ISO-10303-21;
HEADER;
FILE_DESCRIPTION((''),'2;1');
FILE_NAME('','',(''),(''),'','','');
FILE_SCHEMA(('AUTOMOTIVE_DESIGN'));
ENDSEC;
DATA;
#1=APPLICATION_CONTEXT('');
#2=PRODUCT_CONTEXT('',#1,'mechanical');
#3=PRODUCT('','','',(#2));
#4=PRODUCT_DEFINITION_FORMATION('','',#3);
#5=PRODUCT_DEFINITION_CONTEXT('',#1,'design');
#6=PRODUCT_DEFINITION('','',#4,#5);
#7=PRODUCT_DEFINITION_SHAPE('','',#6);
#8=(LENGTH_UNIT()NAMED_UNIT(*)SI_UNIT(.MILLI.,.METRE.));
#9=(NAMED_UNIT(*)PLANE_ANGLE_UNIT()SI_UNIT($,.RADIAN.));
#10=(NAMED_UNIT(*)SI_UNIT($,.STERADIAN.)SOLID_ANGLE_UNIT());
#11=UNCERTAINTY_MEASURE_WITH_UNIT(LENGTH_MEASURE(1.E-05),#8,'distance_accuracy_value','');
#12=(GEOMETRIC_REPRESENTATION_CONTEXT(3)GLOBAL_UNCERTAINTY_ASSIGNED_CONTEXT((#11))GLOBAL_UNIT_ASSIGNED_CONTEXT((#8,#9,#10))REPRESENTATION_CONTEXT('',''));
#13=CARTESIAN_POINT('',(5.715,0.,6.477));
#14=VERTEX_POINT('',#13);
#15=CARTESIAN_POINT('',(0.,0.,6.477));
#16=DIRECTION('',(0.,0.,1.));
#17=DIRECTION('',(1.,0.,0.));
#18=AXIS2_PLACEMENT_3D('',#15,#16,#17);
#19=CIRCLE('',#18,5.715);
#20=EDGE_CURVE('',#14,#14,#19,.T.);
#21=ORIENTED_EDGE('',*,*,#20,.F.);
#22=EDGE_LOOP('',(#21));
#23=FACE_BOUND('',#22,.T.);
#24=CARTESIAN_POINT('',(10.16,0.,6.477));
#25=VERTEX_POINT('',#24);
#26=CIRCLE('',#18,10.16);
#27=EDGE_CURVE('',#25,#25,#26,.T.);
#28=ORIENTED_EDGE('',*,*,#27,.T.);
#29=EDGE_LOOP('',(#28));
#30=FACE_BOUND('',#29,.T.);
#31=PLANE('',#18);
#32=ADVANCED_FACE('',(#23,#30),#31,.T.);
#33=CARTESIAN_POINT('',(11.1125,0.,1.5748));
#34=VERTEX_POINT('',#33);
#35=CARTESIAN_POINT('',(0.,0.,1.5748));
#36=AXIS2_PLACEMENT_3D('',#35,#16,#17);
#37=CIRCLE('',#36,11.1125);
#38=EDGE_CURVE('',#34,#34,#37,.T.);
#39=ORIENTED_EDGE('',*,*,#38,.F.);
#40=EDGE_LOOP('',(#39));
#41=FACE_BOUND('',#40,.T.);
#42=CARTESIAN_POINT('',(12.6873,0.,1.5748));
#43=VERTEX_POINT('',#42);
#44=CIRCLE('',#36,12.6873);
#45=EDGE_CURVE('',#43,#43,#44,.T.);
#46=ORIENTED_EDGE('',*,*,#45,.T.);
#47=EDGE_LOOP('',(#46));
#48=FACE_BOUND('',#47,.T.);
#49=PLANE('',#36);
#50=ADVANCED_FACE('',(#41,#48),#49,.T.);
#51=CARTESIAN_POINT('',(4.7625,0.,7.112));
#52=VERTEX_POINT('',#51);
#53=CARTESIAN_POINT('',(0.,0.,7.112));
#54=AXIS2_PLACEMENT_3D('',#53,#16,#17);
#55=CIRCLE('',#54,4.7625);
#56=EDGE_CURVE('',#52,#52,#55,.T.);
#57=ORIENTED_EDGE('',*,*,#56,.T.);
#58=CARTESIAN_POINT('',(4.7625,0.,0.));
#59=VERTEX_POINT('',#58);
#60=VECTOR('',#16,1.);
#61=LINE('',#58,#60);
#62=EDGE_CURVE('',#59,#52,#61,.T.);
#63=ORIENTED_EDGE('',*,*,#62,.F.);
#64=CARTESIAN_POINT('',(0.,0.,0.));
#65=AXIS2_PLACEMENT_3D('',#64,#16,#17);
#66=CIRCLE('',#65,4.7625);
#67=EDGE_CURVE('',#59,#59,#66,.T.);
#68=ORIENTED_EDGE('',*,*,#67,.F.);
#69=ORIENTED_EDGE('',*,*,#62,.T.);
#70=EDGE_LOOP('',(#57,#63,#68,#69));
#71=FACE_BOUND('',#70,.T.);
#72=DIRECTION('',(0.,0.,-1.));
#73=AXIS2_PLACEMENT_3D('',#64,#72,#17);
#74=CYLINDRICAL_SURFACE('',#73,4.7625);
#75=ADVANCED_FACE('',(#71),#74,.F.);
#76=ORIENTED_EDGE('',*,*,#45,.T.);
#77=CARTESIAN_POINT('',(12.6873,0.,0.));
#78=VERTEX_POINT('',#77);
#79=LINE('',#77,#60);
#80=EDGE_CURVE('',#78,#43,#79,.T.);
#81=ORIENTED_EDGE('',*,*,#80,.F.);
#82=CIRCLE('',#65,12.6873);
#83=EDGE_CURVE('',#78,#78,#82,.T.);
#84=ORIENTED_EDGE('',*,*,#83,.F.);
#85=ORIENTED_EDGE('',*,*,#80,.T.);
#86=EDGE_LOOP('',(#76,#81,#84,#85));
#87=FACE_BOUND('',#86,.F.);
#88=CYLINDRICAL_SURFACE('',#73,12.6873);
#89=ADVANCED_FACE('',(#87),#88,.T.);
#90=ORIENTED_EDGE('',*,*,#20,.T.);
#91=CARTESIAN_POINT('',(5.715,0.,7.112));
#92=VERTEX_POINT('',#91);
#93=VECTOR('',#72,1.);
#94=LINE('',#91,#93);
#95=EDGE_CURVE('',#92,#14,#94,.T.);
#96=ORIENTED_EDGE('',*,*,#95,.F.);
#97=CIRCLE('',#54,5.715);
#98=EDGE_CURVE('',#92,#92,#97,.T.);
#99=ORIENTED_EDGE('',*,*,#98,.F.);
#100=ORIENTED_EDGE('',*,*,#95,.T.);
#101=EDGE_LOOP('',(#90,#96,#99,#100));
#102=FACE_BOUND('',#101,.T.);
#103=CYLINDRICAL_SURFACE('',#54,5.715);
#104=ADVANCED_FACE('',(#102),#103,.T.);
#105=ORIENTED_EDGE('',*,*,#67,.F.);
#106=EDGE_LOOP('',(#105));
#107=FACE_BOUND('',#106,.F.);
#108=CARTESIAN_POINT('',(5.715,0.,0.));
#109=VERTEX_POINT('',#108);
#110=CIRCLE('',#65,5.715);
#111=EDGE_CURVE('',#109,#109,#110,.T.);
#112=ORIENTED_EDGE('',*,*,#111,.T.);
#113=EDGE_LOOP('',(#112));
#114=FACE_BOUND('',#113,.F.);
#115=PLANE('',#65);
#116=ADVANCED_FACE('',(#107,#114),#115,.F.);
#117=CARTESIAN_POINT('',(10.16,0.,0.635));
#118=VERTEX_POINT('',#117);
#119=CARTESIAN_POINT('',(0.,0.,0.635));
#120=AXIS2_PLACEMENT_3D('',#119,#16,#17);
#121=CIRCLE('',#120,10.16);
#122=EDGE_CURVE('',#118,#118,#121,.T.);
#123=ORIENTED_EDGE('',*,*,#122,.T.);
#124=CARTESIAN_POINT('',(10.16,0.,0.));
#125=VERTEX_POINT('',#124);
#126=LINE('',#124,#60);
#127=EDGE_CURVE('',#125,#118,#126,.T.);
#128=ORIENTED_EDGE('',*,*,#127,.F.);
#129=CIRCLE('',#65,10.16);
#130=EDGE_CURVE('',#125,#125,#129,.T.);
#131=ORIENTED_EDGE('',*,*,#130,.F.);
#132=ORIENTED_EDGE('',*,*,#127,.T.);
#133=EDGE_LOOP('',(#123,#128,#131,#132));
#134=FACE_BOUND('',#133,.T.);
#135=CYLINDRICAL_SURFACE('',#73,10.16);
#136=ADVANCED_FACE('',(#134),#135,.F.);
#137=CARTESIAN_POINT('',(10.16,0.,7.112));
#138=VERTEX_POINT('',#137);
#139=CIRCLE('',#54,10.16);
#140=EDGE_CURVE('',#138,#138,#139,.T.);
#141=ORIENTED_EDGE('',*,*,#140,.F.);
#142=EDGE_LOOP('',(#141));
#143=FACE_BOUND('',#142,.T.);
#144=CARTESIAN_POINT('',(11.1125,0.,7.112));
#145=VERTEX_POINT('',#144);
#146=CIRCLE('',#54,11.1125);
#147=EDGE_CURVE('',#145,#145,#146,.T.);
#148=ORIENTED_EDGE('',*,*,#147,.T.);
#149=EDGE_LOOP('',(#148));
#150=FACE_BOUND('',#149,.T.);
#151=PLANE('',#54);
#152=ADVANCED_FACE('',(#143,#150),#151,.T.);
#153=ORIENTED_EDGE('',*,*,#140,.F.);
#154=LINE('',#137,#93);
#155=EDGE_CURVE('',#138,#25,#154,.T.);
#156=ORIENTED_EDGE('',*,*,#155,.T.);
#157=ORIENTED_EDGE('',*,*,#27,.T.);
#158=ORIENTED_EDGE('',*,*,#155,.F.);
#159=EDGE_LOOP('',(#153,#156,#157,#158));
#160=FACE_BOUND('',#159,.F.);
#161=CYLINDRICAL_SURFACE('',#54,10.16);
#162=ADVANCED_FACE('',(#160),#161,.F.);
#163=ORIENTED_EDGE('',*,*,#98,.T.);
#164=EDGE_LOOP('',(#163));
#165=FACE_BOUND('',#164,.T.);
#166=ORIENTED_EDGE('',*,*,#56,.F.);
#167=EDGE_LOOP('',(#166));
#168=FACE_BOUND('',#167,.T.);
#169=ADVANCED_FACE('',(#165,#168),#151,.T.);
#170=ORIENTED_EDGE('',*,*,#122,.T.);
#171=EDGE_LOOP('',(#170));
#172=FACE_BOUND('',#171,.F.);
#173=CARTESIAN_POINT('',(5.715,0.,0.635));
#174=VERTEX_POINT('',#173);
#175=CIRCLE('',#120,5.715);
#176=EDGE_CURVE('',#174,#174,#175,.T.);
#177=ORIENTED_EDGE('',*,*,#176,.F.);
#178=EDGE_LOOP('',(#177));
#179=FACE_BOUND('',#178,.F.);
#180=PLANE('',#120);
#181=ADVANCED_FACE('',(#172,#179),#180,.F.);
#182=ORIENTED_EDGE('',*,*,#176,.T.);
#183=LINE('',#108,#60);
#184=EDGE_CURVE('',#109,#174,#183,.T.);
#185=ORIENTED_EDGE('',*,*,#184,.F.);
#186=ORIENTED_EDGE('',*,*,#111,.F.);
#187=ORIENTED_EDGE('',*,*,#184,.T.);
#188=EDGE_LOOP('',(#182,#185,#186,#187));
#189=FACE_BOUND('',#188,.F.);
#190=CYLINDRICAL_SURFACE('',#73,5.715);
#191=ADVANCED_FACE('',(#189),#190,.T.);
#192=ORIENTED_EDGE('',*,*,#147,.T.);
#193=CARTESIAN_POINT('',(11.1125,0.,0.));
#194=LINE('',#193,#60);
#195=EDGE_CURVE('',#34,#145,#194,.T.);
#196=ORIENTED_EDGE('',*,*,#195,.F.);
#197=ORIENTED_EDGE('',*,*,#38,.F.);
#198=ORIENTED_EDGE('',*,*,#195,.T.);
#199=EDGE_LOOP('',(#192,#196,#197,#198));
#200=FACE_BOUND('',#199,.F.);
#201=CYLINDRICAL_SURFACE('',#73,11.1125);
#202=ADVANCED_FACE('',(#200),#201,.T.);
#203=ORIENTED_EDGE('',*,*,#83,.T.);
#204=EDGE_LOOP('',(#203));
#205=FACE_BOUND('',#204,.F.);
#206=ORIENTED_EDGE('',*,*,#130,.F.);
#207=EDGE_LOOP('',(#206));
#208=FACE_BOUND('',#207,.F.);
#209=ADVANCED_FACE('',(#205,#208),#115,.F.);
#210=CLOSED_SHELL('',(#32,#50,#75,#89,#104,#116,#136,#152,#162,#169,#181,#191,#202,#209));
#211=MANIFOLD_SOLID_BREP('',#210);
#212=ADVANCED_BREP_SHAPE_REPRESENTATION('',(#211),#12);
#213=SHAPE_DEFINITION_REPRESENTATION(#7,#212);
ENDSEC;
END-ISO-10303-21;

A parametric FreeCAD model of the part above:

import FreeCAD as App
import Part
import Sketcher

V = App.Vector
Q = App.Units.Quantity

doc = App.newDocument("Part")
body = doc.addObject("PartDesign::Body", "Body")

# Sketch on XY plane
sketch1 = body.newObject("Sketcher::SketchObject", "Sketch")
sketch1.AttachmentSupport = (doc.getObject("XY_Plane"), [""])
sketch1.MapMode = "FlatFace"
sketch1.addGeometry(Part.Circle(V(0, 0, 0), V(0, 0, 1), 11.1), False)
sketch1.addGeometry(Part.Circle(V(0, 0, 0), V(0, 0, 1), 4.8), False)
sketch1.addConstraint(Sketcher.Constraint("Coincident", 0, 3, -1, 1))
sketch1.addConstraint(Sketcher.Constraint("Coincident", 1, 3, -1, 1))
sketch1.addConstraint(Sketcher.Constraint("Diameter", 0, Q("0.875 in")))
sketch1.addConstraint(Sketcher.Constraint("Diameter", 1, Q("0.375 in")))
pad1 = body.newObject("PartDesign::Pad", "Pad")
pad1.Profile = sketch1
pad1.Length = Q("0.28 in")

# Sketch on XY plane
sketch2 = body.newObject("Sketcher::SketchObject", "Sketch001")
sketch2.AttachmentSupport = (doc.getObject("XY_Plane"), [""])
sketch2.MapMode = "FlatFace"
sketch2.addGeometry(Part.Circle(V(0, 0, 0), V(0, 0, 1), 13), False)
sketch2.addGeometry(Part.Circle(V(0, 0, 0), V(0, 0, 1), 11), False)
sketch2.addConstraint(Sketcher.Constraint("Coincident", 0, 3, -1, 1))
sketch2.addConstraint(Sketcher.Constraint("Coincident", 1, 3, -1, 1))
sketch2.addConstraint(Sketcher.Constraint("Diameter", 0, Q("0.999 in")))
sketch2.addConstraint(Sketcher.Constraint("Diameter", 1, Q("0.875 in")))
pad2 = body.newObject("PartDesign::Pad", "Pad001")
pad2.Profile = sketch2
pad2.Length = Q("0.062 in")

# Sketch on XY plane
sketch3 = body.newObject("Sketcher::SketchObject", "Sketch002")
sketch3.AttachmentSupport = (doc.getObject("XY_Plane"), [""])
sketch3.MapMode = "FlatFace"
sketch3.addGeometry(Part.Circle(V(0, 0, 0), V(0, 0, 1), 10), False)
sketch3.addGeometry(Part.Circle(V(0, 0, 0), V(0, 0, 1), 6), False)
sketch3.addConstraint(Sketcher.Constraint("Coincident", 0, 3, -1, 1))
sketch3.addConstraint(Sketcher.Constraint("Coincident", 1, 3, -1, 1))
sketch3.addConstraint(Sketcher.Constraint("Diameter", 0, Q("0.8 in")))
sketch3.addConstraint(Sketcher.Constraint("Diameter", 1, Q("0.45 in")))
pocket1 = body.newObject("PartDesign::Pocket", "Pocket")
pocket1.Profile = sketch3
pocket1.Length = Q("0.025 in")
pocket1.Reversed = True

# Sketch on XY plane
sketch4 = body.newObject("Sketcher::SketchObject", "Sketch003")
sketch4.AttachmentSupport = (doc.getObject("XY_Plane"), [""])
sketch4.MapMode = "FlatFace"
sketch4.AttachmentOffset = App.Placement(V(0, 0, 0.28 * 25.4), App.Rotation())
sketch4.addGeometry(Part.Circle(V(0, 0, 0), V(0, 0, 1), 10), False)
sketch4.addGeometry(Part.Circle(V(0, 0, 0), V(0, 0, 1), 6), False)
sketch4.addConstraint(Sketcher.Constraint("Coincident", 0, 3, -1, 1))
sketch4.addConstraint(Sketcher.Constraint("Coincident", 1, 3, -1, 1))
sketch4.addConstraint(Sketcher.Constraint("Diameter", 0, Q("0.8 in")))
sketch4.addConstraint(Sketcher.Constraint("Diameter", 1, Q("0.45 in")))
pocket2 = body.newObject("PartDesign::Pocket", "Pocket001")
pocket2.Profile = sketch4
pocket2.Length = Q("0.025 in")

doc.recompute()
